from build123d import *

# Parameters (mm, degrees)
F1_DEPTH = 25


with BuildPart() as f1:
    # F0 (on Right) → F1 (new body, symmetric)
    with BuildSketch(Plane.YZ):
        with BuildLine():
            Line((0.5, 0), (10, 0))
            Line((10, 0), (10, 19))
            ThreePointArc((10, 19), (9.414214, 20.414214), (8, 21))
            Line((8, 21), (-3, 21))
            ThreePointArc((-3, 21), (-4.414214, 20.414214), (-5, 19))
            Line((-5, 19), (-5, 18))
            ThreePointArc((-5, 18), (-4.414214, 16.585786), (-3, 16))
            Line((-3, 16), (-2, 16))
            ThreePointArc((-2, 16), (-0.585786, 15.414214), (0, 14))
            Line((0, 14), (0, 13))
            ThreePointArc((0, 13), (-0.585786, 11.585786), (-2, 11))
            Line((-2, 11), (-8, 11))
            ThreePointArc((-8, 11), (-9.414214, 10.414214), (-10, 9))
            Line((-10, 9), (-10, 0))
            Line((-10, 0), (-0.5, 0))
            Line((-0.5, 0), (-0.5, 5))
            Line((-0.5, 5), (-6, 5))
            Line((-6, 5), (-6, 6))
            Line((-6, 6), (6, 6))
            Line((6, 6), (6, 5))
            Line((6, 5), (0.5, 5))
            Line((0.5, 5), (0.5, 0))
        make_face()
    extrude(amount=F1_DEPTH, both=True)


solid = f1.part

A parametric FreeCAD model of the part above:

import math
import FreeCAD as App
import Part
import Sketcher
from FreeCAD import Vector

doc = App.newDocument("Part")
body = doc.addObject("PartDesign::Body", "Body")

# Sketch on YZ plane
sketch1 = doc.addObject("Sketcher::SketchObject", "Sketch")
body.addObject(sketch1)
sketch1.AttachmentSupport = (doc.YZ_Plane, [""])
sketch1.MapMode = "FlatFace"
sketch1.addGeometry(Part.LineSegment(Vector(0.5, 0, 0), Vector(10, 0, 0)), False)
sketch1.addGeometry(Part.LineSegment(Vector(10, 0, 0), Vector(10, 19, 0)), False)
sketch1.addGeometry(Part.ArcOfCircle(Part.Circle(Vector(8, 19, 0), Vector(0, 0, 1), 2), math.radians(0), math.radians(90)), False)
sketch1.addGeometry(Part.LineSegment(Vector(8, 21, 0), Vector(-3, 21, 0)), False)
sketch1.addGeometry(Part.ArcOfCircle(Part.Circle(Vector(-3, 19, 0), Vector(0, 0, 1), 2), math.radians(90), math.radians(180)), False)
sketch1.addGeometry(Part.LineSegment(Vector(-5, 19, 0), Vector(-5, 18, 0)), False)
sketch1.addGeometry(Part.ArcOfCircle(Part.Circle(Vector(-3, 18, 0), Vector(0, 0, 1), 2), math.radians(180), math.radians(270)), False)
sketch1.addGeometry(Part.LineSegment(Vector(-3, 16, 0), Vector(-2, 16, 0)), False)
sketch1.addGeometry(Part.ArcOfCircle(Part.Circle(Vector(-2, 14, 0), Vector(0, 0, 1), 2), math.radians(0), math.radians(90)), False)
sketch1.addGeometry(Part.LineSegment(Vector(0, 14, 0), Vector(0, 13, 0)), False)
sketch1.addGeometry(Part.ArcOfCircle(Part.Circle(Vector(-2, 13, 0), Vector(0, 0, 1), 2), math.radians(-90), math.radians(0)), False)
sketch1.addGeometry(Part.LineSegment(Vector(-2, 11, 0), Vector(-8, 11, 0)), False)
sketch1.addGeometry(Part.ArcOfCircle(Part.Circle(Vector(-8, 9, 0), Vector(0, 0, 1), 2), math.radians(90), math.radians(180)), False)
sketch1.addGeometry(Part.LineSegment(Vector(-10, 9, 0), Vector(-10, 0, 0)), False)
sketch1.addGeometry(Part.LineSegment(Vector(-10, 0, 0), Vector(-0.5, 0, 0)), False)
sketch1.addGeometry(Part.LineSegment(Vector(-0.5, 0, 0), Vector(-0.5, 5, 0)), False)
sketch1.addGeometry(Part.LineSegment(Vector(-0.5, 5, 0), Vector(-6, 5, 0)), False)
sketch1.addGeometry(Part.LineSegment(Vector(-6, 5, 0), Vector(-6, 6, 0)), False)
sketch1.addGeometry(Part.LineSegment(Vector(-6, 6, 0), Vector(6, 6, 0)), False)
sketch1.addGeometry(Part.LineSegment(Vector(6, 6, 0), Vector(6, 5, 0)), False)
sketch1.addGeometry(Part.LineSegment(Vector(6, 5, 0), Vector(0.5, 5, 0)), False)
sketch1.addGeometry(Part.LineSegment(Vector(0.5, 5, 0), Vector(0.5, 0, 0)), False)
sketch1.addConstraint(Sketcher.Constraint("Coincident", 0, 2, 1, 1))
sketch1.addConstraint(Sketcher.Constraint("Tangent", 1, 2, 2, 1))
sketch1.addConstraint(Sketcher.Constraint("Tangent", 2, 2, 3, 1))
sketch1.addConstraint(Sketcher.Constraint("Tangent", 3, 2, 4, 1))
sketch1.addConstraint(Sketcher.Constraint("Tangent", 4, 2, 5, 1))
sketch1.addConstraint(Sketcher.Constraint("Tangent", 5, 2, 6, 1))
sketch1.addConstraint(Sketcher.Constraint("Tangent", 6, 2, 7, 1))
sketch1.addConstraint(Sketcher.Constraint("Tangent", 7, 2, 8, 2))
sketch1.addConstraint(Sketcher.Constraint("Tangent", 8, 1, 9, 1))
sketch1.addConstraint(Sketcher.Constraint("Tangent", 9, 2, 10, 2))
sketch1.addConstraint(Sketcher.Constraint("Tangent", 10, 1, 11, 1))
sketch1.addConstraint(Sketcher.Constraint("Tangent", 11, 2, 12, 1))
sketch1.addConstraint(Sketcher.Constraint("Tangent", 12, 2, 13, 1))
sketch1.addConstraint(Sketcher.Constraint("Coincident", 13, 2, 14, 1))
sketch1.addConstraint(Sketcher.Constraint("Coincident", 14, 2, 15, 1))
sketch1.addConstraint(Sketcher.Constraint("Coincident", 15, 2, 16, 1))
sketch1.addConstraint(Sketcher.Constraint("Coincident", 16, 2, 17, 1))
sketch1.addConstraint(Sketcher.Constraint("Coincident", 17, 2, 18, 1))
sketch1.addConstraint(Sketcher.Constraint("Coincident", 18, 2, 19, 1))
sketch1.addConstraint(Sketcher.Constraint("Coincident", 19, 2, 20, 1))
sketch1.addConstraint(Sketcher.Constraint("Coincident", 20, 2, 21, 1))
sketch1.addConstraint(Sketcher.Constraint("Coincident", 21, 2, 0, 1))
sketch1.addConstraint(Sketcher.Constraint("Horizontal", 0))
sketch1.addConstraint(Sketcher.Constraint("Vertical", 1))
sketch1.addConstraint(Sketcher.Constraint("Horizontal", 3))
sketch1.addConstraint(Sketcher.Constraint("Vertical", 5))
sketch1.addConstraint(Sketcher.Constraint("Horizontal", 7))
sketch1.addConstraint(Sketcher.Constraint("Vertical", 9))
sketch1.addConstraint(Sketcher.Constraint("Horizontal", 11))
sketch1.addConstraint(Sketcher.Constraint("Vertical", 13))
sketch1.addConstraint(Sketcher.Constraint("Horizontal", 14))
sketch1.addConstraint(Sketcher.Constraint("Vertical", 15))
sketch1.addConstraint(Sketcher.Constraint("Horizontal", 16))
sketch1.addConstraint(Sketcher.Constraint("Vertical", 17))
sketch1.addConstraint(Sketcher.Constraint("Horizontal", 18))
sketch1.addConstraint(Sketcher.Constraint("Vertical", 19))
sketch1.addConstraint(Sketcher.Constraint("Horizontal", 20))
sketch1.addConstraint(Sketcher.Constraint("Vertical", 21))
sketch1.addConstraint(Sketcher.Constraint("Equal", 2, 4))
sketch1.addConstraint(Sketcher.Constraint("Equal", 4, 6))
sketch1.addConstraint(Sketcher.Constraint("Equal", 6, 8))
sketch1.addConstraint(Sketcher.Constraint("Equal", 8, 10))
sketch1.addConstraint(Sketcher.Constraint("Equal", 10, 12))
sketch1.addConstraint(Sketcher.Constraint("Symmetric", 0, 2, 13, 2, -1, 1))
sketch1.addConstraint(Sketcher.Constraint("Symmetric", 16, 2, 19, 2, -2))
sketch1.addConstraint(Sketcher.Constraint("Symmetric", 14, 2, 21, 2, -2))
sketch1.addConstraint(Sketcher.Constraint("PointOnObject", 8, 1, -2))
sketch1.addConstraint(Sketcher.Constraint("Equal", 7, 5))
sketch1.addConstraint(Sketcher.Constraint("Equal", 5, 9))
sketch1.addConstraint(Sketcher.Constraint("Equal", 9, 17))
sketch1.addConstraint(Sketcher.Constraint("Radius", 2, 1.999999))
sketch1.addConstraint(Sketcher.Constraint("DistanceX", 3, 2, 3, 1, 11.0))
sketch1.addConstraint(Sketcher.Constraint("DistanceX", 7, 1, 7, 2, 1.0))
sketch1.addConstraint(Sketcher.Constraint("DistanceX", 18, 1, 18, 2, 12.0))
sketch1.addConstraint(Sketcher.Constraint("DistanceY", 1, 1, 1, 2, 19.0))
sketch1.addConstraint(Sketcher.Constraint("DistanceY", 15, 1, 15, 2, 5.0))
sketch1.addConstraint(Sketcher.Constraint("DistanceX", 0, 1, 0, 2, 9.5))
pad1 = doc.addObject("PartDesign::Pad", "Pad")
body.addObject(pad1)
pad1.Profile = sketch1
pad1.Length = 50
pad1.Midplane = True

doc.recompute()
